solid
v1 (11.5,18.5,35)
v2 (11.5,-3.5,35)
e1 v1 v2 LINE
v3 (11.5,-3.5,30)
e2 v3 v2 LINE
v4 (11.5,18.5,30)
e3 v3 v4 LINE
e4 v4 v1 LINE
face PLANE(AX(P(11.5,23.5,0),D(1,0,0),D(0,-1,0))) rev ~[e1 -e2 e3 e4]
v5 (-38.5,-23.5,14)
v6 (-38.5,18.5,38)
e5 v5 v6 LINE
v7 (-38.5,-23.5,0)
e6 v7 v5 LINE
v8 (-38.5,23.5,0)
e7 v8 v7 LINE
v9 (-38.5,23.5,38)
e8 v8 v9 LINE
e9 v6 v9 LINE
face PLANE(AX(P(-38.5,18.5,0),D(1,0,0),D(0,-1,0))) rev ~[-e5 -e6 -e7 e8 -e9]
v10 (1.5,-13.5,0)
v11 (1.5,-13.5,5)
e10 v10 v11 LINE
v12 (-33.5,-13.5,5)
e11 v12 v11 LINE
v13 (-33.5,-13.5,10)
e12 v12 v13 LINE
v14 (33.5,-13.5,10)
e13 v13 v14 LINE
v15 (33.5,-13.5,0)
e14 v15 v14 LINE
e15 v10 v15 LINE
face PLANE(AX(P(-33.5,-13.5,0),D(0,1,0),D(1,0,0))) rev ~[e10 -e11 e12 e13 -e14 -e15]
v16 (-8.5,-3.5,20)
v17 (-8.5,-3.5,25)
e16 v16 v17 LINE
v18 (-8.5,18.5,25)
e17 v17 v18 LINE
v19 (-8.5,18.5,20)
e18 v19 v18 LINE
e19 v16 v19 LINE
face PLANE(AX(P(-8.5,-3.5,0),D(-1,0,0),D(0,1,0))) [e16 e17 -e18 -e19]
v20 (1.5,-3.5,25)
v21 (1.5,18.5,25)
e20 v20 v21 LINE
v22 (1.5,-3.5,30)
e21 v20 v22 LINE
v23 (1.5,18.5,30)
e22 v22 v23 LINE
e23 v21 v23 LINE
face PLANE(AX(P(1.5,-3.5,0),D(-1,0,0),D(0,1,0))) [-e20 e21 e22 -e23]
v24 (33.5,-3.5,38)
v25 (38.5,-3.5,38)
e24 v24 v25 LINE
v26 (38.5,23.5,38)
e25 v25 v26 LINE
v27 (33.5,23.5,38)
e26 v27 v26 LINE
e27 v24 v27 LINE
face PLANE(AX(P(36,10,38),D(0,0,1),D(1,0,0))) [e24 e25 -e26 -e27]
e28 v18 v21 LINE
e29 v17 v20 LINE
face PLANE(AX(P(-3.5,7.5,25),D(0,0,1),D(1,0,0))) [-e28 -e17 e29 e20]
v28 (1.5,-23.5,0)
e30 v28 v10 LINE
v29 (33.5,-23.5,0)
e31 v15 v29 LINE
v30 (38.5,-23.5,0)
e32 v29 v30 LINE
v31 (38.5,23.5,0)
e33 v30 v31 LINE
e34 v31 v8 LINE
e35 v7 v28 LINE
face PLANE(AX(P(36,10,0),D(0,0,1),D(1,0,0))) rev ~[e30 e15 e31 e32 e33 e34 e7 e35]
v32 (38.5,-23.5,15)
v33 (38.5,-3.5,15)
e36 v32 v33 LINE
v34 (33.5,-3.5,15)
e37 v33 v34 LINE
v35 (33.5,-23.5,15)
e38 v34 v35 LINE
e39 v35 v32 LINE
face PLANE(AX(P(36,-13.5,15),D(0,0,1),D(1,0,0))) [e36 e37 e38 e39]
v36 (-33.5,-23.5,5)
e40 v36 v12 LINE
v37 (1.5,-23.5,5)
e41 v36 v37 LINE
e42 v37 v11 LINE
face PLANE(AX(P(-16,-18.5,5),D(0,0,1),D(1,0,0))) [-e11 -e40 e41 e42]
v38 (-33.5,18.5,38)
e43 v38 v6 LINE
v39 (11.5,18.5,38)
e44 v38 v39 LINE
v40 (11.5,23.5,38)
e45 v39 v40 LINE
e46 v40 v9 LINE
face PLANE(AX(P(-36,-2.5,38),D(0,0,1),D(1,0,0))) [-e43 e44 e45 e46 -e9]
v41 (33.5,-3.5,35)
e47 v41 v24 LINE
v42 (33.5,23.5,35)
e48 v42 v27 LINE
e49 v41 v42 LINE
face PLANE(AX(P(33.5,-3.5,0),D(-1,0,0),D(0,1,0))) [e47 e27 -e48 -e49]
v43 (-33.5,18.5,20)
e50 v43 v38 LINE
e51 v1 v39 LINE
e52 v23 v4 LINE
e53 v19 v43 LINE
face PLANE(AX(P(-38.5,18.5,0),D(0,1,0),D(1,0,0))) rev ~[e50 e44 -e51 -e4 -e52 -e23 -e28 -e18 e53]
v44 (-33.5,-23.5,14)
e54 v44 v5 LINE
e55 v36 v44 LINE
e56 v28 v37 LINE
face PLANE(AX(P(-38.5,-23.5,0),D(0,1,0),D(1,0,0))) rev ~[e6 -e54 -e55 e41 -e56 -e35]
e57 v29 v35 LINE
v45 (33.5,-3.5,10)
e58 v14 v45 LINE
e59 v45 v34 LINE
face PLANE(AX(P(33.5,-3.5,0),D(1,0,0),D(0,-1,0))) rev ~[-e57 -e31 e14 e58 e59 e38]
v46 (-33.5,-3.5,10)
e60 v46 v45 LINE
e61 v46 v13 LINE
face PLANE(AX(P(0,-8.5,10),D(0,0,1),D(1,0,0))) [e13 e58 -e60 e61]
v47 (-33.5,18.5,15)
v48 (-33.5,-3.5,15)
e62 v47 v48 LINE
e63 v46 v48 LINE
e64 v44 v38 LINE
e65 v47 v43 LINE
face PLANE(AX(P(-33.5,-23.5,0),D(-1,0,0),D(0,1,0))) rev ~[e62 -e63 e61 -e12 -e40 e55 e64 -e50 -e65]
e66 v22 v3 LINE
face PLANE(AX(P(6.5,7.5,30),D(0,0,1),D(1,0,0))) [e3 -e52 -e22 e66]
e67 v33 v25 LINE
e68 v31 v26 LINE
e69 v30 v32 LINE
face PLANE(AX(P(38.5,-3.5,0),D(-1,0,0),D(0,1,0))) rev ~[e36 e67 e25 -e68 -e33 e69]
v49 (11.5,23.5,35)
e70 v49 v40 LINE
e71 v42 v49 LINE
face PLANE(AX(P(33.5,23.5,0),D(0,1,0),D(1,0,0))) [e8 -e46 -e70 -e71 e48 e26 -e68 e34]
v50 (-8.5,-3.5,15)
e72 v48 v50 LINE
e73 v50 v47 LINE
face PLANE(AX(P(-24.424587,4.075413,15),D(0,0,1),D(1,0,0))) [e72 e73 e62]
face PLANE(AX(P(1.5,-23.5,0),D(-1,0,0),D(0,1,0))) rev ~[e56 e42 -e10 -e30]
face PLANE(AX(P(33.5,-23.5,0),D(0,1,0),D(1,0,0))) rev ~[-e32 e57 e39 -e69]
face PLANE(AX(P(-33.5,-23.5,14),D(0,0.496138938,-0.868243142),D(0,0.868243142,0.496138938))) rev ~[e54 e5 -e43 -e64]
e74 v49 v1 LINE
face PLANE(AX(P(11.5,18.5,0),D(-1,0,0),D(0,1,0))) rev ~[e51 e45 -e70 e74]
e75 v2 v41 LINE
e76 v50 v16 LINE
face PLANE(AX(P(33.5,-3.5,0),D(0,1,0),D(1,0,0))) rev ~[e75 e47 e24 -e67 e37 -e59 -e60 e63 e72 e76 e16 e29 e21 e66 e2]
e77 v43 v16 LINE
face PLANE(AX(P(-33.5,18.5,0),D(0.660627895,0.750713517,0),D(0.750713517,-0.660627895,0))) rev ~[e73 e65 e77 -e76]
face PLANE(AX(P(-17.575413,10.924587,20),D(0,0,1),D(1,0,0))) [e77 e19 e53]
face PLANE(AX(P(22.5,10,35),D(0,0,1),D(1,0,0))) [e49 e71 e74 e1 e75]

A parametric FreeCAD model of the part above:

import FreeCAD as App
import Part
import Sketcher
Q = App.Units.Quantity


def add_polygon(sketch, points):
    """Adds a closed chain of lines whose ends are joined by coincident constraints."""
    first, n = sketch.GeometryCount, len(points)
    for a, b in zip(points, points[1:] + points[:1]):
        sketch.addGeometry(Part.LineSegment(App.Vector(*a, 0), App.Vector(*b, 0)), False)
    for i in range(n):
        sketch.addConstraint(Sketcher.Constraint("Coincident", first + i, 2, first + (i + 1) % n, 1))

doc = App.newDocument("Part")
body = doc.addObject("PartDesign::Body", "Body")

# Sketch on XY plane
sketch1 = body.newObject("Sketcher::SketchObject", "Sketch")
sketch1.AttachmentSupport = (doc.getObject("XY_Plane"), [""])
sketch1.MapMode = "FlatFace"
add_polygon(sketch1, [(-34, -14), (-34, -24), (2, -24), (2, -14)])  # lines 0-3
sketch1.addConstraint([
    Sketcher.Constraint("Vertical", 0),
    Sketcher.Constraint("Horizontal", 1),
    Sketcher.Constraint("Vertical", 2),
    Sketcher.Constraint("Horizontal", 3),
    Sketcher.Constraint("DistanceX", 1, 1, 1, 2, Q("35 mm")),
    Sketcher.Constraint("DistanceY", 0, 2, 0, 1, Q("10 mm")),
    Sketcher.Constraint("DistanceX", 0, 2, -1, 1, Q("33.5 mm")),
    Sketcher.Constraint("DistanceY", 0, 2, -1, 1, Q("23.5 mm")),
])
pad1 = body.newObject("PartDesign::Pad", "Pad")
pad1.Profile = sketch1
pad1.Length = 5

# Sketch on XY plane
sketch2 = body.newObject("Sketcher::SketchObject", "Sketch001")
sketch2.AttachmentSupport = (doc.getObject("XY_Plane"), [""])
sketch2.MapMode = "FlatFace"
add_polygon(sketch2, [(34, -14), (34, -4), (-34, -4), (-34, -14)])  # lines 0-3
sketch2.addConstraint([
    Sketcher.Constraint("Vertical", 0),
    Sketcher.Constraint("Horizontal", 1),
    Sketcher.Constraint("Vertical", 2),
    Sketcher.Constraint("Horizontal", 3),
    Sketcher.Constraint("DistanceX", 1, 2, 1, 1, Q("67 mm")),
    Sketcher.Constraint("DistanceY", 0, 1, 0, 2, Q("10 mm")),
    Sketcher.Constraint("DistanceX", -1, 1, 0, 2, Q("33.5 mm")),
    Sketcher.Constraint("DistanceY", 0, 2, -1, 1, Q("3.5 mm")),
])
pad2 = body.newObject("PartDesign::Pad", "Pad001")
pad2.Profile = sketch2
pad2.Length = 10

# Sketch on XY plane
sketch3 = body.newObject("Sketcher::SketchObject", "Sketch002")
sketch3.AttachmentSupport = (doc.getObject("XY_Plane"), [""])
sketch3.MapMode = "FlatFace"
add_polygon(sketch3, [(38, -4), (34, -4), (34, -24), (38, -24)])  # lines 0-3
sketch3.addConstraint([
    Sketcher.Constraint("Horizontal", 0),
    Sketcher.Constraint("Vertical", 1),
    Sketcher.Constraint("Horizontal", 2),
    Sketcher.Constraint("Vertical", 3),
    Sketcher.Constraint("DistanceX", 0, 2, 0, 1, Q("5 mm")),
    Sketcher.Constraint("DistanceY", 1, 2, 1, 1, Q("20 mm")),
    Sketcher.Constraint("DistanceX", -1, 1, 0, 2, Q("33.5 mm")),
    Sketcher.Constraint("DistanceY", 0, 2, -1, 1, Q("3.5 mm")),
])
pad3 = body.newObject("PartDesign::Pad", "Pad002")
pad3.Profile = sketch3
pad3.Length = 15
body2 = doc.addObject("PartDesign::Body", "Body001")

# Sketch on XY plane
sketch4 = body2.newObject("Sketcher::SketchObject", "Sketch003")
sketch4.AttachmentSupport = (doc.getObject("XY_Plane001"), [""])
sketch4.MapMode = "FlatFace"
add_polygon(sketch4, [(12, 24), (-38, 24), (-38, 18), (12, 18)])  # lines 0-3
sketch4.addConstraint([
    Sketcher.Constraint("Horizontal", 0),
    Sketcher.Constraint("Vertical", 1),
    Sketcher.Constraint("Horizontal", 2),
    Sketcher.Constraint("Vertical", 3),
    Sketcher.Constraint("DistanceX", 0, 2, 0, 1, Q("50 mm")),
    Sketcher.Constraint("DistanceY", 1, 2, 1, 1, Q("5 mm")),
    Sketcher.Constraint("DistanceX", 0, 2, -1, 1, Q("38.5 mm")),
    Sketcher.Constraint("DistanceY", -1, 1, 0, 2, Q("23.5 mm")),
])
pad4 = body2.newObject("PartDesign::Pad", "Pad003")
pad4.Profile = sketch4
pad4.Length = 38
body.AllowCompound = True
doc.recompute()

boolean = body.newObject("PartDesign::Boolean", "Boolean")
boolean.Type = "Fuse"
boolean.addObjects([body2])

# Sketch on XY plane
sketch5 = body.newObject("Sketcher::SketchObject", "Sketch004")
sketch5.AttachmentSupport = (doc.getObject("XY_Plane"), [""])
sketch5.MapMode = "FlatFace"
add_polygon(sketch5, [(-34, 18), (-38, 18), (-38, -24), (-34, -24)])  # lines 0-3
sketch5.addConstraint([
    Sketcher.Constraint("Horizontal", 0),
    Sketcher.Constraint("Vertical", 1),
    Sketcher.Constraint("Horizontal", 2),
    Sketcher.Constraint("Vertical", 3),
    Sketcher.Constraint("DistanceX", 0, 2, 0, 1, Q("5 mm")),
    Sketcher.Constraint("DistanceY", 1, 2, 1, 1, Q("42 mm")),
    Sketcher.Constraint("DistanceX", 0, 2, -1, 1, Q("38.5 mm")),
    Sketcher.Constraint("DistanceY", -1, 1, 0, 2, Q("18.5 mm")),
])
pad5 = body.newObject("PartDesign::Pad", "Pad004")
pad5.Profile = sketch5
pad5.Length = 38

# Sketch on YZ plane
sketch6 = body.newObject("Sketcher::SketchObject", "Sketch005")
sketch6.AttachmentSupport = (doc.getObject("YZ_Plane"), [""])
sketch6.MapMode = "FlatFace"
sketch6.AttachmentOffset = App.Placement(App.Vector(0, 0, -33.5), App.Rotation())
add_polygon(sketch6, [(-24, 14), (18, 38), (-24, 38)])  # lines 0-2
sketch6.addConstraint([
    Sketcher.Constraint("Horizontal", 1),
    Sketcher.Constraint("Vertical", 2),
    Sketcher.Constraint("DistanceX", 1, 2, 1, 1, Q("42 mm")),
    Sketcher.Constraint("DistanceY", 2, 2, 2, 1, Q("24 mm")),
    Sketcher.Constraint("DistanceY", -1, 1, 0, 2, Q("38 mm")),
    Sketcher.Constraint("DistanceX", -1, 1, 0, 2, Q("18.5 mm")),
])
pocket1 = body.newObject("PartDesign::Pocket", "Pocket")
pocket1.Profile = sketch6
pocket1.Length = 5

# Sketch on XY plane
sketch7 = body.newObject("Sketcher::SketchObject", "Sketch006")
sketch7.AttachmentSupport = (doc.getObject("XY_Plane"), [""])
sketch7.MapMode = "FlatFace"
add_polygon(sketch7, [(-8, -4), (-34, 18), (-34, -4)])  # lines 0-2
sketch7.addConstraint([
    Sketcher.Constraint("Vertical", 1),
    Sketcher.Constraint("Horizontal", 2),
    Sketcher.Constraint("DistanceX", 2, 1, 2, 2, Q("25 mm")),
    Sketcher.Constraint("DistanceY", 1, 2, 1, 1, Q("22 mm")),
    Sketcher.Constraint("DistanceX", 0, 2, -1, 1, Q("33.5 mm")),
    Sketcher.Constraint("DistanceY", -1, 1, 0, 2, Q("18.5 mm")),
])
pad6 = body.newObject("PartDesign::Pad", "Pad005")
pad6.Profile = sketch7
pad6.Length = 15

# Sketch on XY plane
sketch8 = body.newObject("Sketcher::SketchObject", "Sketch007")
sketch8.AttachmentSupport = (doc.getObject("XY_Plane"), [""])
sketch8.MapMode = "FlatFace"
add_polygon(sketch8, [(-8, 18), (-8, -4), (2, -4), (2, 18)])  # lines 0-3
sketch8.addConstraint([
    Sketcher.Constraint("Vertical", 0),
    Sketcher.Constraint("Horizontal", 1),
    Sketcher.Constraint("Vertical", 2),
    Sketcher.Constraint("Horizontal", 3),
    Sketcher.Constraint("DistanceX", 1, 1, 1, 2, Q("10 mm")),
    Sketcher.Constraint("DistanceY", 0, 2, 0, 1, Q("22 mm")),
    Sketcher.Constraint("DistanceX", 0, 2, -1, 1, Q("8.5 mm")),
    Sketcher.Constraint("DistanceY", 0, 2, -1, 1, Q("3.5 mm")),
])
pad7 = body.newObject("PartDesign::Pad", "Pad006")
pad7.Profile = sketch8
pad7.Length = 25

# Sketch on XY plane
sketch9 = body.newObject("Sketcher::SketchObject", "Sketch008")
sketch9.AttachmentSupport = (doc.getObject("XY_Plane"), [""])
sketch9.MapMode = "FlatFace"
add_polygon(sketch9, [(2, 18), (2, -4), (12, -4), (12, 18)])  # lines 0-3
sketch9.addConstraint([
    Sketcher.Constraint("Vertical", 0),
    Sketcher.Constraint("Horizontal", 1),
    Sketcher.Constraint("Vertical", 2),
    Sketcher.Constraint("Horizontal", 3),
    Sketcher.Constraint("DistanceX", 1, 1, 1, 2, Q("10 mm")),
    Sketcher.Constraint("DistanceY", 0, 2, 0, 1, Q("22 mm")),
    Sketcher.Constraint("DistanceX", -1, 1, 0, 2, Q("1.5 mm")),
    Sketcher.Constraint("DistanceY", 0, 2, -1, 1, Q("3.5 mm")),
])
pad8 = body.newObject("PartDesign::Pad", "Pad007")
pad8.Profile = sketch9
pad8.Length = 30

# Sketch on XY plane
sketch10 = body.newObject("Sketcher::SketchObject", "Sketch009")
sketch10.AttachmentSupport = (doc.getObject("XY_Plane"), [""])
sketch10.MapMode = "FlatFace"
add_polygon(sketch10, [(34, 24), (12, 24), (12, -4), (34, -4)])  # lines 0-3
sketch10.addConstraint([
    Sketcher.Constraint("Horizontal", 0),
    Sketcher.Constraint("Vertical", 1),
    Sketcher.Constraint("Horizontal", 2),
    Sketcher.Constraint("Vertical", 3),
    Sketcher.Constraint("DistanceX", 0, 2, 0, 1, Q("22 mm")),
    Sketcher.Constraint("DistanceY", 1, 2, 1, 1, Q("27 mm")),
    Sketcher.Constraint("DistanceX", -1, 1, 0, 2, Q("11.5 mm")),
    Sketcher.Constraint("DistanceY", -1, 1, 0, 2, Q("23.5 mm")),
])
pad9 = body.newObject("PartDesign::Pad", "Pad008")
pad9.Profile = sketch10
pad9.Length = 35

# Sketch on XY plane
sketch11 = body.newObject("Sketcher::SketchObject", "Sketch010")
sketch11.AttachmentSupport = (doc.getObject("XY_Plane"), [""])
sketch11.MapMode = "FlatFace"
add_polygon(sketch11, [(-8, 18), (-34, 18), (-8, -4)])  # lines 0-2
sketch11.addConstraint([
    Sketcher.Constraint("Horizontal", 0),
    Sketcher.Constraint("Vertical", 2),
    Sketcher.Constraint("DistanceX", 0, 2, 0, 1, Q("25 mm")),
    Sketcher.Constraint("DistanceY", 2, 1, 2, 2, Q("22 mm")),
    Sketcher.Constraint("DistanceX", 0, 2, -1, 1, Q("33.5 mm")),
    Sketcher.Constraint("DistanceY", -1, 1, 0, 2, Q("18.5 mm")),
])
pad10 = body.newObject("PartDesign::Pad", "Pad009")
pad10.Profile = sketch11
pad10.Length = 20

# Sketch on XY plane
sketch12 = body.newObject("Sketcher::SketchObject", "Sketch011")
sketch12.AttachmentSupport = (doc.getObject("XY_Plane"), [""])
sketch12.MapMode = "FlatFace"
add_polygon(sketch12, [(34, 24), (34, -4), (38, -4), (38, 24)])  # lines 0-3
sketch12.addConstraint([
    Sketcher.Constraint("Vertical", 0),
    Sketcher.Constraint("Horizontal", 1),
    Sketcher.Constraint("Vertical", 2),
    Sketcher.Constraint("Horizontal", 3),
    Sketcher.Constraint("DistanceX", 1, 1, 1, 2, Q("5 mm")),
    Sketcher.Constraint("DistanceY", 0, 2, 0, 1, Q("27 mm")),
    Sketcher.Constraint("DistanceX", -1, 1, 0, 2, Q("33.5 mm")),
    Sketcher.Constraint("DistanceY", 0, 2, -1, 1, Q("3.5 mm")),
])
pad11 = body.newObject("PartDesign::Pad", "Pad010")
pad11.Profile = sketch12
pad11.Length = 38

doc.recompute()
